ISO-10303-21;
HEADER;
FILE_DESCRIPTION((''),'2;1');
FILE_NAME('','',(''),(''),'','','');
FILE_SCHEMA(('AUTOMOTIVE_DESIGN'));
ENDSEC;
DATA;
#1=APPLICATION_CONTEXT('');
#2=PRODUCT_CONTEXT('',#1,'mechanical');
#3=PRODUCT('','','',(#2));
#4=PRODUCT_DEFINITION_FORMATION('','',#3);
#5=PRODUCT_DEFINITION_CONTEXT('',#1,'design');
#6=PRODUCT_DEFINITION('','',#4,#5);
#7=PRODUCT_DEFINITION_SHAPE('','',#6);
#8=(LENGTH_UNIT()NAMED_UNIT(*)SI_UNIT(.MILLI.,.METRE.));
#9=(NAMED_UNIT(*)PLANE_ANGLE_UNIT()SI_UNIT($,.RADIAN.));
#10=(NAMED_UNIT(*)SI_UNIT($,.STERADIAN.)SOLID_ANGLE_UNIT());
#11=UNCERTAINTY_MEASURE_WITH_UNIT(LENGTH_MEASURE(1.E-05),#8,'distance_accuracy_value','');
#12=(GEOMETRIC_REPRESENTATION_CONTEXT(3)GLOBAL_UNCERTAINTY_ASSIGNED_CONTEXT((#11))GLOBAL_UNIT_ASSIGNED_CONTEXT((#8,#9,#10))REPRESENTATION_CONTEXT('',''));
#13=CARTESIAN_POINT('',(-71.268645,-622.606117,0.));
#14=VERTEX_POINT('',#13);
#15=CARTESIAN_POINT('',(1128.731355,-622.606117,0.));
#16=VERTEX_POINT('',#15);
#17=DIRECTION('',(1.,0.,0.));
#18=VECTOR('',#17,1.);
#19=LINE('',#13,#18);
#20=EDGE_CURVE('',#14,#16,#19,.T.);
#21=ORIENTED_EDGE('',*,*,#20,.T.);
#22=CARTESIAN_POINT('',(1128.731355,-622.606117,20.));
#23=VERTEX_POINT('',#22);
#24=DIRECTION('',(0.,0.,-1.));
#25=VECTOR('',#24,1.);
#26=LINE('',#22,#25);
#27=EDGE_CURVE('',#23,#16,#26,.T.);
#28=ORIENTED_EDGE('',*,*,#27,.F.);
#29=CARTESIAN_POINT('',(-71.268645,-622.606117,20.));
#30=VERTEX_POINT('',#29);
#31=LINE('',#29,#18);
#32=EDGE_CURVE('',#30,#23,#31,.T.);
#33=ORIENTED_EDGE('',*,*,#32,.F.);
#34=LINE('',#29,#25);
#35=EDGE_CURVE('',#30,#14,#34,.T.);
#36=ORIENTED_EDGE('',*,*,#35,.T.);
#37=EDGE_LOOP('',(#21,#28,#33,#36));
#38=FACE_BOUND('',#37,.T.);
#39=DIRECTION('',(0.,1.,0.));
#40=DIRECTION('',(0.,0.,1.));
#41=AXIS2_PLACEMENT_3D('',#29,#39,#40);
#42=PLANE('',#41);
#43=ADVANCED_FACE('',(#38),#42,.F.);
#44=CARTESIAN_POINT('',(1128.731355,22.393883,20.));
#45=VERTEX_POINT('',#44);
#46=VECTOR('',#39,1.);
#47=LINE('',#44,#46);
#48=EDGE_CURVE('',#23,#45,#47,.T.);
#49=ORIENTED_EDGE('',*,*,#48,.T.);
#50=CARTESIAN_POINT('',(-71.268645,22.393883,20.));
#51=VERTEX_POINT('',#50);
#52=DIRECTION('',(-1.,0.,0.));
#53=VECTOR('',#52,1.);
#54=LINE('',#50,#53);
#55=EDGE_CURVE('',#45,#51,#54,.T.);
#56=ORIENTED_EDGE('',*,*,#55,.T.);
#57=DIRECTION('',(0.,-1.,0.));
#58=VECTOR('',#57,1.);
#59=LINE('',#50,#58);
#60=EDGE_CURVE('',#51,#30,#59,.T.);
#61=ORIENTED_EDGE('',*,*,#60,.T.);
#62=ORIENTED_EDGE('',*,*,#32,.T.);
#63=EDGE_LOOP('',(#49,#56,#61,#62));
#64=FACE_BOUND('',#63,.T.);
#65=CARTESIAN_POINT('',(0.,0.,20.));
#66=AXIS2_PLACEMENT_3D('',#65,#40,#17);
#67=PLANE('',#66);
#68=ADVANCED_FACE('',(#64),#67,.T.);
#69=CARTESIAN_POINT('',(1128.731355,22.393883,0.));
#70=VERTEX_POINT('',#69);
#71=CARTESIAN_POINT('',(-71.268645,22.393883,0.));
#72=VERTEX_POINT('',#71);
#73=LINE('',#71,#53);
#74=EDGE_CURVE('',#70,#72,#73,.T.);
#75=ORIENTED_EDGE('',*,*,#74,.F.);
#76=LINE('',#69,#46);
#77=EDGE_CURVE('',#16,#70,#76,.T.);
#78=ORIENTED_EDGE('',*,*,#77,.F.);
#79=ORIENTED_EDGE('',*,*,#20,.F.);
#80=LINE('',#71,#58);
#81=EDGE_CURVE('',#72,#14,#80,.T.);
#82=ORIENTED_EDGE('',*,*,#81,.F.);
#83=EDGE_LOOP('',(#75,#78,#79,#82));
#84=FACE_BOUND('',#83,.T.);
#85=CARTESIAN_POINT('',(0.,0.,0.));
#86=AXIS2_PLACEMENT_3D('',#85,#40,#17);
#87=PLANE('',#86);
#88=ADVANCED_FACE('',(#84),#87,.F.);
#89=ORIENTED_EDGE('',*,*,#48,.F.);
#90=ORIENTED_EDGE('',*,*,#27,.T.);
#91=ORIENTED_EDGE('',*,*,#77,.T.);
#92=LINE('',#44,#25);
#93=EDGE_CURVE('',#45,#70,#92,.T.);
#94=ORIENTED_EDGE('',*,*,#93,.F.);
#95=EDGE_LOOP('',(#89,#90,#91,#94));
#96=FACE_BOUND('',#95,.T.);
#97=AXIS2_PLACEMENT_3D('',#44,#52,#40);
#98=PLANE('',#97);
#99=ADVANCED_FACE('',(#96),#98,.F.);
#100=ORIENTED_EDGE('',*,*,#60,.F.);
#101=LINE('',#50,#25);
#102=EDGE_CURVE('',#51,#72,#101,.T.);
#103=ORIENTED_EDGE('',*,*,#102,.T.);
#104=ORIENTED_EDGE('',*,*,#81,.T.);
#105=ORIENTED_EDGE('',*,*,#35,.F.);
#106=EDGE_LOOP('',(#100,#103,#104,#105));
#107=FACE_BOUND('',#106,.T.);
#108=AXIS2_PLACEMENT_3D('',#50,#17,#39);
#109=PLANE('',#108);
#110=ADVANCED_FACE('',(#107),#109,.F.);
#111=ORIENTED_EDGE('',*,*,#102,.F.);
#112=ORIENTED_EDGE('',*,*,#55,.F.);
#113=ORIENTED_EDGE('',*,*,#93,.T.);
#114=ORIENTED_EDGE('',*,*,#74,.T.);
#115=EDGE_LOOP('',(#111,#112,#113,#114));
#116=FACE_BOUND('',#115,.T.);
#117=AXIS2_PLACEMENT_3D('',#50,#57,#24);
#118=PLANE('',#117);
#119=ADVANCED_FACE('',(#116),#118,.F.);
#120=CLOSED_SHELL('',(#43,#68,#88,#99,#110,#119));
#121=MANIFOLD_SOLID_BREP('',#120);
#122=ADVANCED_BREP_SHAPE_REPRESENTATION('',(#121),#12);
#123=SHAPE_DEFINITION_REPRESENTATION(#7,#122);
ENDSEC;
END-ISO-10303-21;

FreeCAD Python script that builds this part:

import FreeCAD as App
import Part
import Sketcher

V = App.Vector
Q = App.Units.Quantity


def add_polygon(sketch, points):
    """Adds a closed chain of lines whose ends are joined by coincident constraints."""
    first, n = sketch.GeometryCount, len(points)
    for a, b in zip(points, points[1:] + points[:1]):
        sketch.addGeometry(Part.LineSegment(App.Vector(*a, 0), App.Vector(*b, 0)), False)
    for i in range(n):
        sketch.addConstraint(Sketcher.Constraint("Coincident", first + i, 2, first + (i + 1) % n, 1))

doc = App.newDocument("Part")
body = doc.addObject("PartDesign::Body", "Body")

# Sketch on XY plane
sketch1 = body.newObject("Sketcher::SketchObject", "Sketch")
sketch1.AttachmentSupport = (doc.getObject("XY_Plane"), [""])
sketch1.MapMode = "FlatFace"
add_polygon(sketch1, [(-71, 22), (-71, -623), (1129, -623), (1129, 22)])  # lines 0-3
sketch1.addConstraint([
    Sketcher.Constraint("Vertical", 0),
    Sketcher.Constraint("Horizontal", 1),
    Sketcher.Constraint("Vertical", 2),
    Sketcher.Constraint("Horizontal", 3),
    Sketcher.Constraint("DistanceX", 1, 1, 1, 2, Q("1200 mm")),
    Sketcher.Constraint("DistanceY", 0, 2, 0, 1, Q("645 mm")),
    Sketcher.Constraint("DistanceX", 0, 2, -1, 1, Q("71.268645 mm")),
    Sketcher.Constraint("DistanceY", 0, 2, -1, 1, Q("622.606117 mm")),
])
pad1 = body.newObject("PartDesign::Pad", "Pad")
pad1.Profile = sketch1
pad1.Length = 20

doc.recompute()
